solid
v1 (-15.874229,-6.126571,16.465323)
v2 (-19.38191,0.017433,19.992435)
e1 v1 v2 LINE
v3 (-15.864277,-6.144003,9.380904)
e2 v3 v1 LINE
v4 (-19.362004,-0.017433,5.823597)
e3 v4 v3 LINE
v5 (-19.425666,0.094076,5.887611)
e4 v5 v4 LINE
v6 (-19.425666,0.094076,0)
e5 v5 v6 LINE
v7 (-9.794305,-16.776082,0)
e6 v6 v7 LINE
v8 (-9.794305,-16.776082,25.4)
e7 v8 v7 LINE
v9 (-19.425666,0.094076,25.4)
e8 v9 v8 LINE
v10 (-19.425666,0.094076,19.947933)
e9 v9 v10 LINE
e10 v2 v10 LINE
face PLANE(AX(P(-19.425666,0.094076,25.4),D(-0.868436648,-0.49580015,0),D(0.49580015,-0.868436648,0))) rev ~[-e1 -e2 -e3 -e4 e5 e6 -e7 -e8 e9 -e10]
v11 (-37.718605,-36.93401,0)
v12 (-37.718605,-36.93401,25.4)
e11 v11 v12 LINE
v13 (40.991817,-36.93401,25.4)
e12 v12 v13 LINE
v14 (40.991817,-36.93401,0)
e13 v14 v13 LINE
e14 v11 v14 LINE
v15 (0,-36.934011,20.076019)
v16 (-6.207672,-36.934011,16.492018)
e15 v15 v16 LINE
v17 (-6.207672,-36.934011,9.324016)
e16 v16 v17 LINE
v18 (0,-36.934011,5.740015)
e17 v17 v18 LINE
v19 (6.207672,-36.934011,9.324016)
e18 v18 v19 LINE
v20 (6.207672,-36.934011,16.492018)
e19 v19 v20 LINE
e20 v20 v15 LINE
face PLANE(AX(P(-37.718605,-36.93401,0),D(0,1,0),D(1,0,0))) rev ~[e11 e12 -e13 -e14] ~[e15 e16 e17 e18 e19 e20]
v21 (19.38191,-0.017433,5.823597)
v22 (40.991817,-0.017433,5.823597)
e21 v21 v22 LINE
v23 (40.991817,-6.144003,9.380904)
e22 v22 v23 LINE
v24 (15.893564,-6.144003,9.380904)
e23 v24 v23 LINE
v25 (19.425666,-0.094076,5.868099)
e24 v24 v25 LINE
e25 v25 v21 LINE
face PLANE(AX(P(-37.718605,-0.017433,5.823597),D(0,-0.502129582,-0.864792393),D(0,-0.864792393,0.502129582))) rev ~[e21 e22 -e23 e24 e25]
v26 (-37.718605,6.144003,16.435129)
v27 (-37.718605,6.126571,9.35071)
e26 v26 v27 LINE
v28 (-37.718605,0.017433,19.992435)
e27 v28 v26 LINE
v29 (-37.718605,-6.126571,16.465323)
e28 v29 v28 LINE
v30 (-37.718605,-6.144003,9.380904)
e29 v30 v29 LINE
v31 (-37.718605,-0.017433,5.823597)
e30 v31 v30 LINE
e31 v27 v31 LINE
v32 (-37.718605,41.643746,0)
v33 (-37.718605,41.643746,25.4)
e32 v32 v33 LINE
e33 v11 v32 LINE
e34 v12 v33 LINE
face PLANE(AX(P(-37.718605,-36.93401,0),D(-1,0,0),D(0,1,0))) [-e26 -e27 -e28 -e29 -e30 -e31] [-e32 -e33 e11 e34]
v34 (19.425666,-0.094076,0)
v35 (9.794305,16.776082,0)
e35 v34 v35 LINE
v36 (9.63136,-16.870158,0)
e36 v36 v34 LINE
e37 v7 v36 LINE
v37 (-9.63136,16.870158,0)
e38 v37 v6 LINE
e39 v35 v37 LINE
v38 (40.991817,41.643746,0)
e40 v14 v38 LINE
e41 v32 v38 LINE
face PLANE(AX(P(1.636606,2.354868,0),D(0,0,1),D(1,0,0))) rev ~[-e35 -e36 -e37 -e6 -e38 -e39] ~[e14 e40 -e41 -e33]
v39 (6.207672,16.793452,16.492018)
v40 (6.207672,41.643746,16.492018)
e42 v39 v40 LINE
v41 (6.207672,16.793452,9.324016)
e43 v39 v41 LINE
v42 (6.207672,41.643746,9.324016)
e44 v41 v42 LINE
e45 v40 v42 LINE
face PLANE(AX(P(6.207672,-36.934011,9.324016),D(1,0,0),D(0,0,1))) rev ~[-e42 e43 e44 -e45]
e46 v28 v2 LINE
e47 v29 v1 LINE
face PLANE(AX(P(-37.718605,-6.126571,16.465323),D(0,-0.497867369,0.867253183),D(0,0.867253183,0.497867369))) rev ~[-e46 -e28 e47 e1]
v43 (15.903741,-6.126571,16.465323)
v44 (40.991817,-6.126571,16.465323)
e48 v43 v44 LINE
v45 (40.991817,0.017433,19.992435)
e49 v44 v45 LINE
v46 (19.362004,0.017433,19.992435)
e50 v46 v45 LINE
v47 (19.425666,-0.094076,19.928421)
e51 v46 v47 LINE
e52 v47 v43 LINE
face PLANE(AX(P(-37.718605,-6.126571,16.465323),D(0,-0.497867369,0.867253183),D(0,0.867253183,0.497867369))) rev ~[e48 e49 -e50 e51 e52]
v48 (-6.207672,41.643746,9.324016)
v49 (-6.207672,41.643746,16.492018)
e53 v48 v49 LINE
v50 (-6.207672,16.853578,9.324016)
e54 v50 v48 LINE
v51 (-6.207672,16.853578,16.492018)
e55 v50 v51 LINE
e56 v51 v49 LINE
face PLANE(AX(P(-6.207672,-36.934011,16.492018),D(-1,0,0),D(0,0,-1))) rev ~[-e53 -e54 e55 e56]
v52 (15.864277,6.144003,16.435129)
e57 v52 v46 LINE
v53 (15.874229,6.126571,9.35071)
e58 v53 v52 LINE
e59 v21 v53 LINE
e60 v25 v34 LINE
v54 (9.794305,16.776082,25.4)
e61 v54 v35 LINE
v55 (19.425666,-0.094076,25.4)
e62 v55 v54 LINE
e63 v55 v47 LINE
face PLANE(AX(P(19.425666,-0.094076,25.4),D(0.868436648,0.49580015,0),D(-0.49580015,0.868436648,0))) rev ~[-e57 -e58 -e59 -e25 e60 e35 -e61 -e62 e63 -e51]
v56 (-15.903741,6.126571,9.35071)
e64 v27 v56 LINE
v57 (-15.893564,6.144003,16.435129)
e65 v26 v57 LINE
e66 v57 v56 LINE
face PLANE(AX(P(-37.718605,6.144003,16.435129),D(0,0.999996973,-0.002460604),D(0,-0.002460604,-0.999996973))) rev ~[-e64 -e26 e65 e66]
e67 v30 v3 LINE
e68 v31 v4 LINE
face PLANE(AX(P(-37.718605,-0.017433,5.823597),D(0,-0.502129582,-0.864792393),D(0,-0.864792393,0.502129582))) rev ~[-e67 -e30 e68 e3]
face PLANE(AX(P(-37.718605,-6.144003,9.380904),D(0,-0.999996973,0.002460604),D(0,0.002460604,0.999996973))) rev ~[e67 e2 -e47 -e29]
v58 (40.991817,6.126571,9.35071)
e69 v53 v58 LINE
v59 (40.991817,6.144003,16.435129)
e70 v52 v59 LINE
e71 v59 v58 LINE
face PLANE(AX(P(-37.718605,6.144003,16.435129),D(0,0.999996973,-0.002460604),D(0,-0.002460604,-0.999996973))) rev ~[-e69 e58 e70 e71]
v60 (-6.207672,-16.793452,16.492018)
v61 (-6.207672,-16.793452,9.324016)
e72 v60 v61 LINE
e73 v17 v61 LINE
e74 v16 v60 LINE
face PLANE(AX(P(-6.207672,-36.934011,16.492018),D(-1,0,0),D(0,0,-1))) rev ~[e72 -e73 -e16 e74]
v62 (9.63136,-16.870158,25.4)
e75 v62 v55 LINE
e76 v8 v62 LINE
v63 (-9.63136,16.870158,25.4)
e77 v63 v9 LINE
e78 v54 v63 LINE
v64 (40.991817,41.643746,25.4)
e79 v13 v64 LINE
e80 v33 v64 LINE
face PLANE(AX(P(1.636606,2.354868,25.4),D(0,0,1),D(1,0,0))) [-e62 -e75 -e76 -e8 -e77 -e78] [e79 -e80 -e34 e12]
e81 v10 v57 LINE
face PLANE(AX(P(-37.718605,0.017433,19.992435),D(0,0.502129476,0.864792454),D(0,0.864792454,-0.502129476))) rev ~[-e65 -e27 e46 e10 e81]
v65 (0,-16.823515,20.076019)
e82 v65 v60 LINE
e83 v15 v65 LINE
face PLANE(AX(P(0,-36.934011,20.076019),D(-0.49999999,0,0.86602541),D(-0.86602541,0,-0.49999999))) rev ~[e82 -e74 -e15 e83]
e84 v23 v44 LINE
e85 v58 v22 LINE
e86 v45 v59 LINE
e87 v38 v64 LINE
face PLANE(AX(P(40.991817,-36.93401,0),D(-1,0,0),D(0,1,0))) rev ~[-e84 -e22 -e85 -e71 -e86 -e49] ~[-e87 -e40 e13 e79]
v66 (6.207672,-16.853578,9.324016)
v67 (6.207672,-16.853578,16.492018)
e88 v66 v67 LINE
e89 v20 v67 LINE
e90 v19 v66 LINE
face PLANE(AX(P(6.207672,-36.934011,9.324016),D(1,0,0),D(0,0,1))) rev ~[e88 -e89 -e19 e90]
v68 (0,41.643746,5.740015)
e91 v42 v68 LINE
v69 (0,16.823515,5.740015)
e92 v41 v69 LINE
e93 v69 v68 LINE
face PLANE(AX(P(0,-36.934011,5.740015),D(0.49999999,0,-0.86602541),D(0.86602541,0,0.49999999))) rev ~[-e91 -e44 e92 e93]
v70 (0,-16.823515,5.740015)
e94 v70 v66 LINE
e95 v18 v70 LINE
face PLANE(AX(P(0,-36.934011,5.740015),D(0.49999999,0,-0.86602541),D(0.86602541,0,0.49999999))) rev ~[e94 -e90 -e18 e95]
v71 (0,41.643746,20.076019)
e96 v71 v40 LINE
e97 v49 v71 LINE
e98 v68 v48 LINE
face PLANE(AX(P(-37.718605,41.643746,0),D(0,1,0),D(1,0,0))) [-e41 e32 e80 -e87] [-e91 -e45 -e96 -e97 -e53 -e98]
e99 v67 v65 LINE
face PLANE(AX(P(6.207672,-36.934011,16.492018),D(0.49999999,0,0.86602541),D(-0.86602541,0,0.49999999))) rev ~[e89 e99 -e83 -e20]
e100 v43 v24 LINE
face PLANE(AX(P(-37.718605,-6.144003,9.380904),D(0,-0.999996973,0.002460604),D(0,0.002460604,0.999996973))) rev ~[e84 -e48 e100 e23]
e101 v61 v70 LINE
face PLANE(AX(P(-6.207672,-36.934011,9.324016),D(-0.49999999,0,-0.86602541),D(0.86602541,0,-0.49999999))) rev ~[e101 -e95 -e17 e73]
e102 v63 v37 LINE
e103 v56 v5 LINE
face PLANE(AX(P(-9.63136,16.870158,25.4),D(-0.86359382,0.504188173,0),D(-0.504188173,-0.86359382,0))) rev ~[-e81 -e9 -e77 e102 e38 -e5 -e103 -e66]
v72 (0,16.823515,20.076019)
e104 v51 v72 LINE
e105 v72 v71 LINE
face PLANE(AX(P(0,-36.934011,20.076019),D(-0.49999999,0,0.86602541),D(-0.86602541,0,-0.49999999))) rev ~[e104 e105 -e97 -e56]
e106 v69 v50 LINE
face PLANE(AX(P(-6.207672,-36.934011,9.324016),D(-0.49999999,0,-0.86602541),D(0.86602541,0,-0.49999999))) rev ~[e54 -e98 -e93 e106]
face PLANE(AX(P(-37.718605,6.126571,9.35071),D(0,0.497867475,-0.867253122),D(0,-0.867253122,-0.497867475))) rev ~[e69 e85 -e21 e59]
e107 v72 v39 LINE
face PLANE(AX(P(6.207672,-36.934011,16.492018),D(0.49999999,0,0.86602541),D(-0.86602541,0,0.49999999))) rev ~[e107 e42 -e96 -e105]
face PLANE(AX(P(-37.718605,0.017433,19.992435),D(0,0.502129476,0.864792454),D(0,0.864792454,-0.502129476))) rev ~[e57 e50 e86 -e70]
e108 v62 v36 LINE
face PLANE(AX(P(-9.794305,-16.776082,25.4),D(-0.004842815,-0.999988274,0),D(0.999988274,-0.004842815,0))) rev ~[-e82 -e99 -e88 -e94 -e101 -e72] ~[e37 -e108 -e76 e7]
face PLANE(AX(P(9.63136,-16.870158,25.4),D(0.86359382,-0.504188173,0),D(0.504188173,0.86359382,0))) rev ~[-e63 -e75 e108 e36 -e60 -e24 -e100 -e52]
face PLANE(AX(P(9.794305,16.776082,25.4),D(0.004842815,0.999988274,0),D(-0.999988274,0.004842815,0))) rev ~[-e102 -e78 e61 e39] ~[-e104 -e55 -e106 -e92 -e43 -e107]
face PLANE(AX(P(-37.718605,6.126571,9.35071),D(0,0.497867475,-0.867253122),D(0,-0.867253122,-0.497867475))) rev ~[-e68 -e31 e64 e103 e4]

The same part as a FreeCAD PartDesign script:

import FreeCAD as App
import Part
import Sketcher
from FreeCAD import Vector
Q = App.Units.Quantity

doc = App.newDocument("Part")
body = doc.addObject("PartDesign::Body", "Body")

# Sketch on XY plane
sketch1 = doc.addObject("Sketcher::SketchObject", "Sketch")
body.addObject(sketch1)
sketch1.AttachmentSupport = (doc.XY_Plane, [""])
sketch1.MapMode = "FlatFace"
sketch1.addGeometry([
    Part.LineSegment(Vector(-37.718605, 41.643746, 0), Vector(-37.718605, -36.93401, 0)),
    Part.LineSegment(Vector(-37.718605, -36.93401, 0), Vector(40.991817, -36.93401, 0)),
    Part.LineSegment(Vector(40.991817, -36.93401, 0), Vector(40.991817, 41.643746, 0)),
    Part.LineSegment(Vector(40.991817, 41.643746, 0), Vector(-37.718605, 41.643746, 0)),
], False)
sketch1.addConstraint([
    Sketcher.Constraint("Coincident", 0, 2, 1, 1),
    Sketcher.Constraint("Coincident", 1, 2, 2, 1),
    Sketcher.Constraint("Coincident", 2, 2, 3, 1),
    Sketcher.Constraint("Coincident", 3, 2, 0, 1),
    Sketcher.Constraint("Vertical", 0),
    Sketcher.Constraint("Horizontal", 1),
    Sketcher.Constraint("Vertical", 2),
    Sketcher.Constraint("Horizontal", 3),
    Sketcher.Constraint("DistanceX", 1, 1, 1, 2, 78.710422),
    Sketcher.Constraint("DistanceY", 0, 2, 0, 1, 78.577757),
    Sketcher.Constraint("DistanceY", 0, 2, -1, 1, 36.93401),
    Sketcher.Constraint("DistanceX", 0, 2, -1, 1, 37.718605),
])
pad1 = doc.addObject("PartDesign::Pad", "Pad")
body.addObject(pad1)
pad1.Profile = sketch1
pad1.Length = Q("1 in")

# Sketch on XY plane
sketch2 = doc.addObject("Sketcher::SketchObject", "Sketch001")
body.addObject(sketch2)
sketch2.AttachmentSupport = (doc.XY_Plane, [""])
sketch2.MapMode = "FlatFace"
sketch2.AttachmentOffset = App.Placement(Vector(0, 0, 1 * 25.4), App.Rotation())
sketch2.addGeometry([
    Part.LineSegment(Vector(9.63136, -16.870158, 0), Vector(19.425666, -0.094076, 0)),  # 0
    Part.LineSegment(Vector(19.425666, -0.094076, 0), Vector(9.794305, 16.776082, 0)),  # 1
    Part.LineSegment(Vector(9.794305, 16.776082, 0), Vector(-9.63136, 16.870158, 0)),  # 2
    Part.LineSegment(Vector(-9.63136, 16.870158, 0), Vector(-19.425666, 0.094076, 0)),  # 3
    Part.LineSegment(Vector(-19.425666, 0.094076, 0), Vector(-9.794305, -16.776082, 0)),  # 4
    Part.LineSegment(Vector(-9.794305, -16.776082, 0), Vector(9.63136, -16.870158, 0)),  # 5
], False)
sketch2.addConstraint([
    Sketcher.Constraint("Coincident", 0, 2, 1, 1),
    Sketcher.Constraint("Coincident", 1, 2, 2, 1),
    Sketcher.Constraint("Coincident", 2, 2, 3, 1),
    Sketcher.Constraint("Coincident", 3, 2, 4, 1),
    Sketcher.Constraint("Coincident", 4, 2, 5, 1),
    Sketcher.Constraint("Coincident", 5, 2, 0, 1),
    Sketcher.Constraint("Symmetric", 0, 2, 3, 2, -1, 1),
    Sketcher.Constraint("Symmetric", 1, 2, 4, 2, -1, 1),
    Sketcher.Constraint("Symmetric", 2, 2, 5, 2, -1, 1),
    Sketcher.Constraint("Equal", 0, 1),
    Sketcher.Constraint("Equal", 1, 2),
    Sketcher.Constraint("DistanceY", -1, 1, 1, 2, 16.776082),
    Sketcher.Constraint("DistanceX", 2, 2, -1, 1, 9.63136),
    Sketcher.Constraint("DistanceY", -1, 1, 2, 2, 16.870158),
    Sketcher.Constraint("DistanceX", 1, 2, 0, 2, 9.631361),
])
pocket1 = doc.addObject("PartDesign::Pocket", "Pocket")
body.addObject(pocket1)
pocket1.Profile = sketch2
pocket1.Length = Q("1 in")

# Sketch on YZ plane
sketch3 = doc.addObject("Sketcher::SketchObject", "Sketch002")
body.addObject(sketch3)
sketch3.AttachmentSupport = (doc.YZ_Plane, [""])
sketch3.MapMode = "FlatFace"
sketch3.AttachmentOffset = App.Placement(Vector(0, 0, -37.718605), App.Rotation())
sketch3.addGeometry([
    Part.LineSegment(Vector(-6.126571, 16.465323, 0), Vector(0.017433, 19.992435, 0)),  # 0
    Part.LineSegment(Vector(0.017433, 19.992435, 0), Vector(6.144003, 16.435129, 0)),  # 1
    Part.LineSegment(Vector(6.144003, 16.435129, 0), Vector(6.126571, 9.35071, 0)),  # 2
    Part.LineSegment(Vector(6.126571, 9.35071, 0), Vector(-0.017433, 5.823597, 0)),  # 3
    Part.LineSegment(Vector(-0.017433, 5.823597, 0), Vector(-6.144003, 9.380904, 0)),  # 4
    Part.LineSegment(Vector(-6.144003, 9.380904, 0), Vector(-6.126571, 16.465323, 0)),  # 5
], False)
sketch3.addConstraint([
    Sketcher.Constraint("Coincident", 0, 2, 1, 1),
    Sketcher.Constraint("Coincident", 1, 2, 2, 1),
    Sketcher.Constraint("Coincident", 2, 2, 3, 1),
    Sketcher.Constraint("Coincident", 3, 2, 4, 1),
    Sketcher.Constraint("Coincident", 4, 2, 5, 1),
    Sketcher.Constraint("Coincident", 5, 2, 0, 1),
    Sketcher.Constraint("Parallel", 0, 3),
    Sketcher.Constraint("Parallel", 1, 4),
    Sketcher.Constraint("Parallel", 2, 5),
    Sketcher.Constraint("Equal", 0, 1),
    Sketcher.Constraint("Equal", 1, 2),
    Sketcher.Constraint("Equal", 2, 3),
    Sketcher.Constraint("Distance", 0, 7.084441),
    Sketcher.Constraint("DistanceY", -1, 1, 1, 2, 16.435129),
    Sketcher.Constraint("DistanceX", -1, 1, 2, 2, 6.126571),
    Sketcher.Constraint("DistanceX", 5, 2, -1, 1, 6.126571),
    Sketcher.Constraint("DistanceX", 0, 2, 1, 2, 6.12657),
    Sketcher.Constraint("DistanceX", 2, 2, 1, 2, 0.017432),
])
pocket2 = doc.addObject("PartDesign::Pocket", "Pocket001")
body.addObject(pocket2)
pocket2.Profile = sketch3
pocket2.Type = "ThroughAll"
pocket2.Reversed = True

# Sketch on XZ plane
sketch4 = doc.addObject("Sketcher::SketchObject", "Sketch003")
body.addObject(sketch4)
sketch4.AttachmentSupport = (doc.XZ_Plane, [""])
sketch4.MapMode = "FlatFace"
sketch4.AttachmentOffset = App.Placement(Vector(0, 0, 36.934011), App.Rotation())
sketch4.addGeometry([
    Part.LineSegment(Vector(6.207672, 9.324016, 0), Vector(6.207672, 16.492018, 0)),  # 0
    Part.LineSegment(Vector(6.207672, 16.492018, 0), Vector(0, 20.076019, 0)),  # 1
    Part.LineSegment(Vector(0, 20.076019, 0), Vector(-6.207672, 16.492018, 0)),  # 2
    Part.LineSegment(Vector(-6.207672, 16.492018, 0), Vector(-6.207672, 9.324016, 0)),  # 3
    Part.LineSegment(Vector(-6.207672, 9.324016, 0), Vector(0, 5.740015, 0)),  # 4
    Part.LineSegment(Vector(0, 5.740015, 0), Vector(6.207672, 9.324016, 0)),  # 5
], False)
sketch4.addConstraint([
    Sketcher.Constraint("Coincident", 0, 2, 1, 1),
    Sketcher.Constraint("Coincident", 1, 2, 2, 1),
    Sketcher.Constraint("Coincident", 2, 2, 3, 1),
    Sketcher.Constraint("Coincident", 3, 2, 4, 1),
    Sketcher.Constraint("Coincident", 4, 2, 5, 1),
    Sketcher.Constraint("Coincident", 5, 2, 0, 1),
    Sketcher.Constraint("Vertical", 0),
    Sketcher.Constraint("Vertical", 3),
    Sketcher.Constraint("Symmetric", 0, 2, 2, 2, -2),
    Sketcher.Constraint("PointOnObject", 1, 2, -2),
    Sketcher.Constraint("PointOnObject", 4, 2, -2),
    Sketcher.Constraint("Parallel", 1, 4),
    Sketcher.Constraint("Parallel", 2, 5),
    Sketcher.Constraint("Angle", 1, Q("150.000001 deg")),
    Sketcher.Constraint("DistanceY", 0, 2, 1, 2, 3.584001),
    Sketcher.Constraint("DistanceY", 0, 1, 0, 2, 7.168002),
    Sketcher.Constraint("DistanceY", -1, 1, 0, 2, 16.492018),
])
pocket3 = doc.addObject("PartDesign::Pocket", "Pocket002")
body.addObject(pocket3)
pocket3.Profile = sketch4
pocket3.Type = "ThroughAll"

doc.recompute()
